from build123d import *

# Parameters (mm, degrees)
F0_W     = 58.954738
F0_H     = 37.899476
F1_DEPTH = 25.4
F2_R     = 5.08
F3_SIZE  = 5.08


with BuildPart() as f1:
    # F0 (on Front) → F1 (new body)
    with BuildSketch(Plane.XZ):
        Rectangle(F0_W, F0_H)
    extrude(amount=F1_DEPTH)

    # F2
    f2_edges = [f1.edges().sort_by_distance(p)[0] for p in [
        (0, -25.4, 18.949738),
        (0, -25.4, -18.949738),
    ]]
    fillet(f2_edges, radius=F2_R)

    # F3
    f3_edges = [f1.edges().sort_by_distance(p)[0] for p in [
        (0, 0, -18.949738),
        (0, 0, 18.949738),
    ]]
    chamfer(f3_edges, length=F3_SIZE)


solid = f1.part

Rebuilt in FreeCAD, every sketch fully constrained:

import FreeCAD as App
import Part
import Sketcher
Q = App.Units.Quantity


def edges_at(feature, points):
    """Names of the edges that pass closest to the given points."""
    edges = feature.Shape.Edges
    near = lambda p: min(range(len(edges)), key=lambda i: edges[i].distToShape(Part.Vertex(*p))[0])
    return sorted({f"Edge{near(p) + 1}" for p in points})


def add_polygon(sketch, points):
    """Adds a closed chain of lines whose ends are joined by coincident constraints."""
    first, n = sketch.GeometryCount, len(points)
    for a, b in zip(points, points[1:] + points[:1]):
        sketch.addGeometry(Part.LineSegment(App.Vector(*a, 0), App.Vector(*b, 0)), False)
    for i in range(n):
        sketch.addConstraint(Sketcher.Constraint("Coincident", first + i, 2, first + (i + 1) % n, 1))

doc = App.newDocument("Part")
params = doc.addObject("Spreadsheet::Sheet", "Params")
for row, (alias, value) in enumerate([
    ("pad1_length", "1 in"),
    ("fillet_radius", "0.2 in"),
    ("chamfer_size", "0.2 in"),
], start=1):
    params.set(f"A{row}", alias)
    params.set(f"B{row}", "=" + value)
    params.setAlias(f"B{row}", alias)

body = doc.addObject("PartDesign::Body", "Body")

sketch1 = doc.addObject("Sketcher::SketchObject", "Sketch")
body.addObject(sketch1)
sketch1.AttachmentSupport = (doc.XZ_Plane, [""])
sketch1.MapMode = "FlatFace"
add_polygon(sketch1, [(-29, 19), (-29, -19), (29, -19), (29, 19)])
sketch1.addConstraint(Sketcher.Constraint("Vertical", 0))
sketch1.addConstraint(Sketcher.Constraint("Horizontal", 1))
sketch1.addConstraint(Sketcher.Constraint("Vertical", 2))
sketch1.addConstraint(Sketcher.Constraint("Horizontal", 3))
sketch1.addConstraint(Sketcher.Constraint("Symmetric", 0, 2, 2, 2, -1, 1))
sketch1.addConstraint(Sketcher.Constraint("DistanceX", 1, 1, 1, 2, Q("58.954738 mm")))
sketch1.addConstraint(Sketcher.Constraint("DistanceY", 0, 2, 0, 1, Q("37.899476 mm")))
pad1 = doc.addObject("PartDesign::Pad", "Pad")
body.addObject(pad1)
pad1.Profile = sketch1
pad1.setExpression("Length", "Params.pad1_length")
doc.recompute()

fillet = doc.addObject("PartDesign::Fillet", "Fillet")
body.addObject(fillet)
fillet.Base = (pad1, edges_at(pad1, [(0, -25.4, 18.95), (0, -25.4, -18.95)]))
fillet.setExpression("Radius", "Params.fillet_radius")
doc.recompute()

chamfer = doc.addObject("PartDesign::Chamfer", "Chamfer")
body.addObject(chamfer)
chamfer.Base = (fillet, edges_at(fillet, [(0, 0, -18.95), (0, 0, 18.95)]))
chamfer.setExpression("Size", "Params.chamfer_size")

doc.recompute()
